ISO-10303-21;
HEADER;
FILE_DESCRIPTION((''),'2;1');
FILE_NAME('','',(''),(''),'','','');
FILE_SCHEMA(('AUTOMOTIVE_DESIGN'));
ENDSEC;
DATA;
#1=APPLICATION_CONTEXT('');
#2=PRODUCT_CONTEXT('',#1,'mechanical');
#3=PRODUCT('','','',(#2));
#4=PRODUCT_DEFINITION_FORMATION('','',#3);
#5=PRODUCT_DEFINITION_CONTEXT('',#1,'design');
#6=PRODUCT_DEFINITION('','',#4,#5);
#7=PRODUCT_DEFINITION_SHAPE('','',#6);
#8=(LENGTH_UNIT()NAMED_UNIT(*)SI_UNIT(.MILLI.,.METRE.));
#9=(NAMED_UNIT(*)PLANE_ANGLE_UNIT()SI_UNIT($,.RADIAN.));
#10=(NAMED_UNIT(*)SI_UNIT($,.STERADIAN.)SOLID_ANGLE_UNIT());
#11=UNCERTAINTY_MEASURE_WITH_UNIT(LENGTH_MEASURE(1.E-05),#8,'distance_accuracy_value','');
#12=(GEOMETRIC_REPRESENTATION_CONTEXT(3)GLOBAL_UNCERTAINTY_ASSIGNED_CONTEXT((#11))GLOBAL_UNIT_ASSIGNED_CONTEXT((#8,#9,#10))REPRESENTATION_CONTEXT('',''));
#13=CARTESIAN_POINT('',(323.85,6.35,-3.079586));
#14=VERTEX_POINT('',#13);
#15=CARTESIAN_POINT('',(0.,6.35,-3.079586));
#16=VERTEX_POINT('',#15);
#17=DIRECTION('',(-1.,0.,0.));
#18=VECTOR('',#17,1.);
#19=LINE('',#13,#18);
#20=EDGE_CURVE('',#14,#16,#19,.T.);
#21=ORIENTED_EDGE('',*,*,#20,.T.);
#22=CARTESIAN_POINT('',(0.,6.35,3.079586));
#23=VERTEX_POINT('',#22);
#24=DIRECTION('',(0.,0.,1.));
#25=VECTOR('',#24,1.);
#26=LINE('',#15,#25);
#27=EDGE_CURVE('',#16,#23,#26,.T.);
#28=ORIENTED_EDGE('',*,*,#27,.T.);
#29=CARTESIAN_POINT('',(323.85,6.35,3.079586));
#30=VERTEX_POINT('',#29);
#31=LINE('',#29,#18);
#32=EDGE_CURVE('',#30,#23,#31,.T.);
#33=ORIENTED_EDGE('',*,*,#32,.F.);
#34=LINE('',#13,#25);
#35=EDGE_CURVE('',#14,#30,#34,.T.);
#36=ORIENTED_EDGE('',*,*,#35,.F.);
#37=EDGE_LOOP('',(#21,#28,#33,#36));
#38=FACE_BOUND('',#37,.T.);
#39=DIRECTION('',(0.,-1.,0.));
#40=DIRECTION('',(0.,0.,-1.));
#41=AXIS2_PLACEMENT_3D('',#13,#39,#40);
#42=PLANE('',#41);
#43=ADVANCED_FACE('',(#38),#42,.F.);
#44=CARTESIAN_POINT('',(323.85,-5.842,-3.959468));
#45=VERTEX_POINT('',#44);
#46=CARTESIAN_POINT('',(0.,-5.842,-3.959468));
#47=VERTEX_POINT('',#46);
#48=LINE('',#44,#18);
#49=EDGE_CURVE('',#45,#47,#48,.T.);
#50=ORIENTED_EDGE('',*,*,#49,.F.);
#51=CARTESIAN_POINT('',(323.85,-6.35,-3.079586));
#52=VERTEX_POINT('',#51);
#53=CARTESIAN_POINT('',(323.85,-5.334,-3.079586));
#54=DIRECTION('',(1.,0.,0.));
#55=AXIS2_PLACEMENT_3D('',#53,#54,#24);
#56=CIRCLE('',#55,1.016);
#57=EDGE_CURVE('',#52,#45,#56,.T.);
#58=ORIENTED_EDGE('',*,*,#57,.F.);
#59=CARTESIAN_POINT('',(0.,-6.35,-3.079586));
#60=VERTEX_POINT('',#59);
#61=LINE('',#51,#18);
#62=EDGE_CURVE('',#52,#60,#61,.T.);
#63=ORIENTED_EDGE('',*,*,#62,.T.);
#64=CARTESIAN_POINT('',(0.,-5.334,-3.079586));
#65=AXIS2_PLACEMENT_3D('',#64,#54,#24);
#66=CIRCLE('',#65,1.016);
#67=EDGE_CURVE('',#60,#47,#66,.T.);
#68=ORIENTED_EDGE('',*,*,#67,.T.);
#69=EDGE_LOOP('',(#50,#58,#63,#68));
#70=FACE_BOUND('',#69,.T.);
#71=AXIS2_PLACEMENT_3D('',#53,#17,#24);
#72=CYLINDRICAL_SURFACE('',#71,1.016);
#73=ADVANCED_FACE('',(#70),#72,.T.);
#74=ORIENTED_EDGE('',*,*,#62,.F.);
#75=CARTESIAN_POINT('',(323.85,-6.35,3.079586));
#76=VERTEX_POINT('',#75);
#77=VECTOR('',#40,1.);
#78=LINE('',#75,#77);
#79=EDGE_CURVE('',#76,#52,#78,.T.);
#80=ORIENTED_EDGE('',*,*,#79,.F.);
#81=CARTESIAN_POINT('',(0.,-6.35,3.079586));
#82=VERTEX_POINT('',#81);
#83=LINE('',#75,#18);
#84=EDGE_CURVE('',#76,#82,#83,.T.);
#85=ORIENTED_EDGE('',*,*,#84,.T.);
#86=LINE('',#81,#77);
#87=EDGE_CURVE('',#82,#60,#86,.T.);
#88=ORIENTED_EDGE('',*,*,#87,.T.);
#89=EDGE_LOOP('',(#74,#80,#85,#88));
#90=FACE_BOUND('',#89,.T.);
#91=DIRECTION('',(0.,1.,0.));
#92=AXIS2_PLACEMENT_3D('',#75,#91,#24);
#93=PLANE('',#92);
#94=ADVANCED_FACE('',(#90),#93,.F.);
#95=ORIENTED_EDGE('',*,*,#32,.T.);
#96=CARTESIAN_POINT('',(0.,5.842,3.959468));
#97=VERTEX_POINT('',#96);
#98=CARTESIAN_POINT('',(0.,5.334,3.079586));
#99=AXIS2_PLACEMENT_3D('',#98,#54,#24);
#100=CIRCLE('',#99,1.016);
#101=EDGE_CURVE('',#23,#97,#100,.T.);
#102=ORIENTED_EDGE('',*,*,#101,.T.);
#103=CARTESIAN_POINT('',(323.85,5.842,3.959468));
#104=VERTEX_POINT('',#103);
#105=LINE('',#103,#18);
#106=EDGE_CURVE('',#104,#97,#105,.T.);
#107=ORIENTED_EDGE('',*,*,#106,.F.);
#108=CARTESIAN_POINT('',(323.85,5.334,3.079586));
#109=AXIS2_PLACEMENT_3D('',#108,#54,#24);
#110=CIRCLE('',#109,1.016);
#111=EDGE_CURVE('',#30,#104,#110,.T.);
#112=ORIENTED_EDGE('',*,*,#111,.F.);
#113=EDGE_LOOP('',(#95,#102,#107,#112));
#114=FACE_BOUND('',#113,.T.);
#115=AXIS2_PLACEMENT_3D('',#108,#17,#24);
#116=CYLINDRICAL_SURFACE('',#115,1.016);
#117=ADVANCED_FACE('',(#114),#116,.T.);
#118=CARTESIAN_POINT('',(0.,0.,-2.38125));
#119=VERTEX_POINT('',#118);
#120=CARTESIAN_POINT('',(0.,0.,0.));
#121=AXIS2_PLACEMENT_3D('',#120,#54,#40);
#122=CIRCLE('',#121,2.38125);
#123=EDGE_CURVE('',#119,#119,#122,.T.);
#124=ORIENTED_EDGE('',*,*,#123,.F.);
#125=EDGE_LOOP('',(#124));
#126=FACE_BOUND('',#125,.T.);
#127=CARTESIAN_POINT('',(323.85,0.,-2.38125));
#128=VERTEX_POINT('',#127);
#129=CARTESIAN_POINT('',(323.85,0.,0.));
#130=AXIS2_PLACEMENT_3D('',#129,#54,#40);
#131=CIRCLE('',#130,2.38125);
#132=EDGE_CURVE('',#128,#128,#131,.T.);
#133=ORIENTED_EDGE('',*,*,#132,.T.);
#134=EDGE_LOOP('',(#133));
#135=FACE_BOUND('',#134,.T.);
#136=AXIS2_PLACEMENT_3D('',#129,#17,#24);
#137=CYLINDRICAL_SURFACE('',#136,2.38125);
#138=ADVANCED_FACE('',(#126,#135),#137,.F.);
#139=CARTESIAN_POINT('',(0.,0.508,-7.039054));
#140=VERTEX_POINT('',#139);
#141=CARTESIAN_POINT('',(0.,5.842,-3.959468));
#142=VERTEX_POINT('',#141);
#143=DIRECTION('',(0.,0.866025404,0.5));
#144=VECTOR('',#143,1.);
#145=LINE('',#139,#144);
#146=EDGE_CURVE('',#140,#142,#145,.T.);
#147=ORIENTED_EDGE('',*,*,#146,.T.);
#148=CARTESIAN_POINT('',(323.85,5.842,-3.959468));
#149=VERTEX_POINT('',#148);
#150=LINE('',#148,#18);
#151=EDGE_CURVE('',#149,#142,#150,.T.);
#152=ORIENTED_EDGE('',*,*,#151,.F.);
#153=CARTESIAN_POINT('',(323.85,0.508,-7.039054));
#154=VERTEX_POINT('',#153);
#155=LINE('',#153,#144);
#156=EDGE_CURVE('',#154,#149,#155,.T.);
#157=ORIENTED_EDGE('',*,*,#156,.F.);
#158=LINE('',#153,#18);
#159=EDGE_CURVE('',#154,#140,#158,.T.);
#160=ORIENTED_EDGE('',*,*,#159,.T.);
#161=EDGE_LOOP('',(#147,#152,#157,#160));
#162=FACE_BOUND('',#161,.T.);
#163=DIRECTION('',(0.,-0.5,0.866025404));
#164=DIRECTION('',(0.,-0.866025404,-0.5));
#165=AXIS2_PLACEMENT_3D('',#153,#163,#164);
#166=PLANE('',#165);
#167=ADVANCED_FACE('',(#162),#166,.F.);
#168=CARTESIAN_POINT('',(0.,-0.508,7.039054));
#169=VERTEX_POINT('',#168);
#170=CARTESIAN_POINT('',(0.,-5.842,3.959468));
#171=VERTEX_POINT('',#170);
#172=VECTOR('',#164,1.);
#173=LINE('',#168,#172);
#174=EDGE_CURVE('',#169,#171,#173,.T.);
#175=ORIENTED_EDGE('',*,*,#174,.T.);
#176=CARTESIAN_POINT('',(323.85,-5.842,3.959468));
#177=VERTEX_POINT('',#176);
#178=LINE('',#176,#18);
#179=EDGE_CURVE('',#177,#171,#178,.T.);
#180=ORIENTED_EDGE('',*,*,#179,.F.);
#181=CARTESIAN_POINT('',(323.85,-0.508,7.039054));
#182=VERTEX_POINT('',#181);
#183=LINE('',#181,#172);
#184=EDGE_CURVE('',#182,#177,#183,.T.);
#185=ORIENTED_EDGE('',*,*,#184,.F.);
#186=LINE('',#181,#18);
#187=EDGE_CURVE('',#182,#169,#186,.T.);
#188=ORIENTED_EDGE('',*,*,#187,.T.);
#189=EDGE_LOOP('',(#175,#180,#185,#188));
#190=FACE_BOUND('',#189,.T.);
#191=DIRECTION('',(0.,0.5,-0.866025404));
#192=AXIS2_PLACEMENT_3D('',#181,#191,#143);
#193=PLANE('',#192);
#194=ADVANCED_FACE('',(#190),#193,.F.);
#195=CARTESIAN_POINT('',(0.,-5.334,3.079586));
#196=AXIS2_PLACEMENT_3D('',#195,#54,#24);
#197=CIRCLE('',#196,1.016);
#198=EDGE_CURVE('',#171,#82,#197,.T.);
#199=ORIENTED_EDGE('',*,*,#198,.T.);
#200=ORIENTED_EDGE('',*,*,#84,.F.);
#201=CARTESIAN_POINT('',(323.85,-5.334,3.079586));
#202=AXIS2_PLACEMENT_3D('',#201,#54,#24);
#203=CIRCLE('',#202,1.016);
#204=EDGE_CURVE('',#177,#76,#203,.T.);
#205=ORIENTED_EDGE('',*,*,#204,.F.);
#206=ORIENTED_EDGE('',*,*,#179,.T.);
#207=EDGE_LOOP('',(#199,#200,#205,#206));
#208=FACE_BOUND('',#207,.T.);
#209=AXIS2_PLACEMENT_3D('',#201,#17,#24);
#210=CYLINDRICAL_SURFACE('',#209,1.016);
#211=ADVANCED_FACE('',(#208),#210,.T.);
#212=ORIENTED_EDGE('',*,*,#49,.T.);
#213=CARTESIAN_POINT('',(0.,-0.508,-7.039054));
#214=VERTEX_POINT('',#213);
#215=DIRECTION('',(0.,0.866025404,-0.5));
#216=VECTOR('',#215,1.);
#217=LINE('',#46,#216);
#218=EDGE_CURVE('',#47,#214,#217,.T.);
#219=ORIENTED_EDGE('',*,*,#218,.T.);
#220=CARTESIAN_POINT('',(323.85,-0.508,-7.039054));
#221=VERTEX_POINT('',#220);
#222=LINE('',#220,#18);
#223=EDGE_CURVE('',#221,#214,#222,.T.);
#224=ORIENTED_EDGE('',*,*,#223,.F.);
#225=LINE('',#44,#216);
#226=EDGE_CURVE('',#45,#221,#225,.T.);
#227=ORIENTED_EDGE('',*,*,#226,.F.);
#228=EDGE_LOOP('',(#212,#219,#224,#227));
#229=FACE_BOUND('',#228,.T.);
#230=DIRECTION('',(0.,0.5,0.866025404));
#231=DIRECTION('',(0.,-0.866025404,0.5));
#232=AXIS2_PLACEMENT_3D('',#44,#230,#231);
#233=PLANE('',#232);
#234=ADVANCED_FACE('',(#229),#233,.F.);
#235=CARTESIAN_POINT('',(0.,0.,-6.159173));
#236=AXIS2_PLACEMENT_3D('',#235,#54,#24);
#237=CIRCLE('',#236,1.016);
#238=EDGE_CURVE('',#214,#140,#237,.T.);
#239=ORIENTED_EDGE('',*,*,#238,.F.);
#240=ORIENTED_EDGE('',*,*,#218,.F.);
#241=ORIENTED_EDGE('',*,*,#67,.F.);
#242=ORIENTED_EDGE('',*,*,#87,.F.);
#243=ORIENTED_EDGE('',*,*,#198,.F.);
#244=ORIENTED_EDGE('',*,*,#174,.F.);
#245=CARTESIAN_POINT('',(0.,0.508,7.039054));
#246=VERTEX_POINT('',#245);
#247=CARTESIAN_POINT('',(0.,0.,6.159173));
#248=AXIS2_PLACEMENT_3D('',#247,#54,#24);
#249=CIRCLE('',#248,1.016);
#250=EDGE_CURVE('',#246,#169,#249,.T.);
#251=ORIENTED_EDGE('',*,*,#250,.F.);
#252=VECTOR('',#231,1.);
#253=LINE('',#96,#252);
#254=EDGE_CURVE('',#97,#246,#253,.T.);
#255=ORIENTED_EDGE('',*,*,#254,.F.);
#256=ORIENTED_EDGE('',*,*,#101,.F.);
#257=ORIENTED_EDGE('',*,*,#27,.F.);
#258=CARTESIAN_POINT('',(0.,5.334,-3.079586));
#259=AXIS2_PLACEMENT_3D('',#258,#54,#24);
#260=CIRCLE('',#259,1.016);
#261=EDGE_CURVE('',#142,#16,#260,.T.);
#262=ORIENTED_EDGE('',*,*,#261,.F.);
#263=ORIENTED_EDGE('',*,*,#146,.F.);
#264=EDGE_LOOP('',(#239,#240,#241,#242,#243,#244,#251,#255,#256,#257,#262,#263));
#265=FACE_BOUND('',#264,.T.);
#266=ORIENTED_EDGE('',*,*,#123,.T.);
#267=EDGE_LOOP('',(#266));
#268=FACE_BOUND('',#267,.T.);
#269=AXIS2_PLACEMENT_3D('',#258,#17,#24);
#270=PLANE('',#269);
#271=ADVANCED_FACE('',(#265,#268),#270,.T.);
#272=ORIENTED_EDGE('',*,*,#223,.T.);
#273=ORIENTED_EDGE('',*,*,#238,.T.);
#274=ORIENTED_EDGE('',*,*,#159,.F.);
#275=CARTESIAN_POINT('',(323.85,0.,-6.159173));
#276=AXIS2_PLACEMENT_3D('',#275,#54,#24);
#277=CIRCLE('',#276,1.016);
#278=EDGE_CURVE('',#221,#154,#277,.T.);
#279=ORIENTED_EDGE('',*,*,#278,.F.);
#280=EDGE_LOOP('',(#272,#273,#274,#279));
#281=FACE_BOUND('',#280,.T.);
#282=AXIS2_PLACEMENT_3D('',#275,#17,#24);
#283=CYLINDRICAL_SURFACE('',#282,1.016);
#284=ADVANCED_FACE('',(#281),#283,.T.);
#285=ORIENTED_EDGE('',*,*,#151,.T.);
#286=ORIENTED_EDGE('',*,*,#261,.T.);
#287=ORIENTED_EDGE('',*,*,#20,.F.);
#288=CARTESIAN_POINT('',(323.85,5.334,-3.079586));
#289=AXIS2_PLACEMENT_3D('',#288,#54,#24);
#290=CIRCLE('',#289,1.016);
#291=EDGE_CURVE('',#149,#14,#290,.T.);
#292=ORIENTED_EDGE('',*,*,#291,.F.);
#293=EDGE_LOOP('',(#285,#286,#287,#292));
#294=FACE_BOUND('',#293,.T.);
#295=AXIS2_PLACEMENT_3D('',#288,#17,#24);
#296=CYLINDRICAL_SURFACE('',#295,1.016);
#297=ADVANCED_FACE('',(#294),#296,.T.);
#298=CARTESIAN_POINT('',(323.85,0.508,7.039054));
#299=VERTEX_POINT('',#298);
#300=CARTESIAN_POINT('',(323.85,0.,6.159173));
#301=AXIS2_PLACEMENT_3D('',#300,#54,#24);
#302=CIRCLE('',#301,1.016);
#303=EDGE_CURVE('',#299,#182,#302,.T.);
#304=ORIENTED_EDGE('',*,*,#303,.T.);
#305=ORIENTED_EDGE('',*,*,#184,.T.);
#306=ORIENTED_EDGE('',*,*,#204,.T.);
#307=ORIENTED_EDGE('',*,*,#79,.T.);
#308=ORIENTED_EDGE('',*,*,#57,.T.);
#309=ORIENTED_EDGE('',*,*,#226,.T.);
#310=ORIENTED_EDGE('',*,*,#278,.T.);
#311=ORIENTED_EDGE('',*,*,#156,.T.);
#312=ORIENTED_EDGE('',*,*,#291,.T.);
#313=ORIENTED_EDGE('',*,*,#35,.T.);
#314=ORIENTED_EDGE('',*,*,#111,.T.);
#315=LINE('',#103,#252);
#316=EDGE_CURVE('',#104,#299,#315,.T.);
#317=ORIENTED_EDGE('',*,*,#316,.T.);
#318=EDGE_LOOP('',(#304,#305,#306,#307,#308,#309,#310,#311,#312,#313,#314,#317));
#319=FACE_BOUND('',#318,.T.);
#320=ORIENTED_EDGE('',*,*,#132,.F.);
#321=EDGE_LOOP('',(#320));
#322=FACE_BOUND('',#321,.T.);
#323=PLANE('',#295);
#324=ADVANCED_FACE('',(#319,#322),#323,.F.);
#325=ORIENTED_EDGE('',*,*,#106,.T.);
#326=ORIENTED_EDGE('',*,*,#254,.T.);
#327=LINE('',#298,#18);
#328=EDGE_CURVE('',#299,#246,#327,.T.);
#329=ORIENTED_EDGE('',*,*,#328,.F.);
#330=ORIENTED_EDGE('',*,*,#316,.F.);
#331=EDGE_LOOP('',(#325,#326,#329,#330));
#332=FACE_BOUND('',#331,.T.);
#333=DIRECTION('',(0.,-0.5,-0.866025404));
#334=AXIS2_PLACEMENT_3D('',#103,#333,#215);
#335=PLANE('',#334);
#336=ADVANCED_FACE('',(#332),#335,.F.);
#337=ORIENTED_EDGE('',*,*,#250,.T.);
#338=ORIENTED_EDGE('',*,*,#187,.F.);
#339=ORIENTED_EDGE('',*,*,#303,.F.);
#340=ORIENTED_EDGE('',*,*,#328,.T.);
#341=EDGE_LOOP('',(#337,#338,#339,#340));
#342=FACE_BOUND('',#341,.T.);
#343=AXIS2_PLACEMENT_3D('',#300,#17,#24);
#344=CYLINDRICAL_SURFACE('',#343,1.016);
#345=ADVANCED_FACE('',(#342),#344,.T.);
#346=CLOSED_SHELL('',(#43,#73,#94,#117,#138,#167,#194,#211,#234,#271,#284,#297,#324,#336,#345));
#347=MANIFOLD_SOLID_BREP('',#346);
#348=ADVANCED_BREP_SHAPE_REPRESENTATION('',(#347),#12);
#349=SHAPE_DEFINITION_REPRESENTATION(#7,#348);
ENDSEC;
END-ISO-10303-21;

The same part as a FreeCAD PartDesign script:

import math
import FreeCAD as App
import Part
import Sketcher
Q = App.Units.Quantity

doc = App.newDocument("Part")
body = doc.addObject("PartDesign::Body", "Body")

# Sketch on YZ plane
sketch1 = doc.addObject("Sketcher::SketchObject", "Sketch")
body.addObject(sketch1)
sketch1.AttachmentSupport = (doc.YZ_Plane, [""])
sketch1.MapMode = "FlatFace"
sketch1.addGeometry([
    Part.LineSegment(App.Vector(0.508, -7.039054, 0), App.Vector(5.842, -3.959468, 0)),  # 0
    Part.ArcOfCircle(Part.Circle(App.Vector(5.334, -3.079586, 0), App.Vector(0, 0, 1), 1.016), math.radians(-60), math.radians(0)),  # 1
    Part.LineSegment(App.Vector(6.35, -3.079586, 0), App.Vector(6.35, 3.079586, 0)),  # 2
    Part.ArcOfCircle(Part.Circle(App.Vector(5.334, 3.079586, 0), App.Vector(0, 0, 1), 1.016), math.radians(0), math.radians(60)),  # 3
    Part.LineSegment(App.Vector(5.842, 3.959468, 0), App.Vector(0.508, 7.039054, 0)),  # 4
    Part.ArcOfCircle(Part.Circle(App.Vector(0, 6.159173, 0), App.Vector(0, 0, 1), 1.016), math.radians(60), math.radians(120)),  # 5
    Part.LineSegment(App.Vector(-0.508, 7.039054, 0), App.Vector(-5.842, 3.959468, 0)),  # 6
    Part.ArcOfCircle(Part.Circle(App.Vector(-5.334, 3.079586, 0), App.Vector(0, 0, 1), 1.016), math.radians(120), math.radians(180)),  # 7
    Part.LineSegment(App.Vector(-6.35, 3.079586, 0), App.Vector(-6.35, -3.079586, 0)),  # 8
    Part.ArcOfCircle(Part.Circle(App.Vector(-5.334, -3.079586, 0), App.Vector(0, 0, 1), 1.016), math.radians(-180), math.radians(-120)),  # 9
    Part.LineSegment(App.Vector(-5.842, -3.959468, 0), App.Vector(-0.508, -7.039054, 0)),  # 10
    Part.ArcOfCircle(Part.Circle(App.Vector(0, -6.159173, 0), App.Vector(0, 0, 1), 1.016), math.radians(-120), math.radians(-60)),  # 11
    Part.Circle(App.Vector(0, 0, 0), App.Vector(0, 0, 1), 2.38125),  # 12
], False)
sketch1.addConstraint([
    Sketcher.Constraint("Tangent", 0, 2, 1, 1),
    Sketcher.Constraint("Tangent", 1, 2, 2, 1),
    Sketcher.Constraint("Tangent", 2, 2, 3, 1),
    Sketcher.Constraint("Tangent", 3, 2, 4, 1),
    Sketcher.Constraint("Tangent", 4, 2, 5, 1),
    Sketcher.Constraint("Tangent", 5, 2, 6, 1),
    Sketcher.Constraint("Tangent", 6, 2, 7, 1),
    Sketcher.Constraint("Tangent", 7, 2, 8, 1),
    Sketcher.Constraint("Tangent", 8, 2, 9, 1),
    Sketcher.Constraint("Tangent", 9, 2, 10, 1),
    Sketcher.Constraint("Tangent", 10, 2, 11, 1),
    Sketcher.Constraint("Tangent", 11, 2, 0, 1),
    Sketcher.Constraint("Vertical", 2),
    Sketcher.Constraint("Vertical", 8),
    Sketcher.Constraint("Coincident", 12, 3, -1, 1),
    Sketcher.Constraint("Equal", 1, 3),
    Sketcher.Constraint("Equal", 3, 5),
    Sketcher.Constraint("Equal", 5, 7),
    Sketcher.Constraint("Equal", 7, 9),
    Sketcher.Constraint("Equal", 9, 11),
    Sketcher.Constraint("Symmetric", 1, 3, 7, 3, -1, 1),
    Sketcher.Constraint("Symmetric", 5, 3, 11, 3, -1, 1),
    Sketcher.Constraint("Symmetric", 4, 2, 5, 2, -2),
    Sketcher.Constraint("Parallel", 4, 10),
    Sketcher.Constraint("Radius", 1, Q("0.04 in")),
    Sketcher.Constraint("Diameter", 12, Q("0.1875 in")),
    Sketcher.Constraint("Angle", 0, Q("30 deg")),
    Sketcher.Constraint("DistanceX", -1, 1, 1, 3, Q("0.21 in")),
    Sketcher.Constraint("DistanceY", 2, 1, 2, 2, Q("6.159173 mm")),
])
pad1 = doc.addObject("PartDesign::Pad", "Pad")
body.addObject(pad1)
pad1.Profile = sketch1
pad1.Length = Q("12.75 in")

doc.recompute()
